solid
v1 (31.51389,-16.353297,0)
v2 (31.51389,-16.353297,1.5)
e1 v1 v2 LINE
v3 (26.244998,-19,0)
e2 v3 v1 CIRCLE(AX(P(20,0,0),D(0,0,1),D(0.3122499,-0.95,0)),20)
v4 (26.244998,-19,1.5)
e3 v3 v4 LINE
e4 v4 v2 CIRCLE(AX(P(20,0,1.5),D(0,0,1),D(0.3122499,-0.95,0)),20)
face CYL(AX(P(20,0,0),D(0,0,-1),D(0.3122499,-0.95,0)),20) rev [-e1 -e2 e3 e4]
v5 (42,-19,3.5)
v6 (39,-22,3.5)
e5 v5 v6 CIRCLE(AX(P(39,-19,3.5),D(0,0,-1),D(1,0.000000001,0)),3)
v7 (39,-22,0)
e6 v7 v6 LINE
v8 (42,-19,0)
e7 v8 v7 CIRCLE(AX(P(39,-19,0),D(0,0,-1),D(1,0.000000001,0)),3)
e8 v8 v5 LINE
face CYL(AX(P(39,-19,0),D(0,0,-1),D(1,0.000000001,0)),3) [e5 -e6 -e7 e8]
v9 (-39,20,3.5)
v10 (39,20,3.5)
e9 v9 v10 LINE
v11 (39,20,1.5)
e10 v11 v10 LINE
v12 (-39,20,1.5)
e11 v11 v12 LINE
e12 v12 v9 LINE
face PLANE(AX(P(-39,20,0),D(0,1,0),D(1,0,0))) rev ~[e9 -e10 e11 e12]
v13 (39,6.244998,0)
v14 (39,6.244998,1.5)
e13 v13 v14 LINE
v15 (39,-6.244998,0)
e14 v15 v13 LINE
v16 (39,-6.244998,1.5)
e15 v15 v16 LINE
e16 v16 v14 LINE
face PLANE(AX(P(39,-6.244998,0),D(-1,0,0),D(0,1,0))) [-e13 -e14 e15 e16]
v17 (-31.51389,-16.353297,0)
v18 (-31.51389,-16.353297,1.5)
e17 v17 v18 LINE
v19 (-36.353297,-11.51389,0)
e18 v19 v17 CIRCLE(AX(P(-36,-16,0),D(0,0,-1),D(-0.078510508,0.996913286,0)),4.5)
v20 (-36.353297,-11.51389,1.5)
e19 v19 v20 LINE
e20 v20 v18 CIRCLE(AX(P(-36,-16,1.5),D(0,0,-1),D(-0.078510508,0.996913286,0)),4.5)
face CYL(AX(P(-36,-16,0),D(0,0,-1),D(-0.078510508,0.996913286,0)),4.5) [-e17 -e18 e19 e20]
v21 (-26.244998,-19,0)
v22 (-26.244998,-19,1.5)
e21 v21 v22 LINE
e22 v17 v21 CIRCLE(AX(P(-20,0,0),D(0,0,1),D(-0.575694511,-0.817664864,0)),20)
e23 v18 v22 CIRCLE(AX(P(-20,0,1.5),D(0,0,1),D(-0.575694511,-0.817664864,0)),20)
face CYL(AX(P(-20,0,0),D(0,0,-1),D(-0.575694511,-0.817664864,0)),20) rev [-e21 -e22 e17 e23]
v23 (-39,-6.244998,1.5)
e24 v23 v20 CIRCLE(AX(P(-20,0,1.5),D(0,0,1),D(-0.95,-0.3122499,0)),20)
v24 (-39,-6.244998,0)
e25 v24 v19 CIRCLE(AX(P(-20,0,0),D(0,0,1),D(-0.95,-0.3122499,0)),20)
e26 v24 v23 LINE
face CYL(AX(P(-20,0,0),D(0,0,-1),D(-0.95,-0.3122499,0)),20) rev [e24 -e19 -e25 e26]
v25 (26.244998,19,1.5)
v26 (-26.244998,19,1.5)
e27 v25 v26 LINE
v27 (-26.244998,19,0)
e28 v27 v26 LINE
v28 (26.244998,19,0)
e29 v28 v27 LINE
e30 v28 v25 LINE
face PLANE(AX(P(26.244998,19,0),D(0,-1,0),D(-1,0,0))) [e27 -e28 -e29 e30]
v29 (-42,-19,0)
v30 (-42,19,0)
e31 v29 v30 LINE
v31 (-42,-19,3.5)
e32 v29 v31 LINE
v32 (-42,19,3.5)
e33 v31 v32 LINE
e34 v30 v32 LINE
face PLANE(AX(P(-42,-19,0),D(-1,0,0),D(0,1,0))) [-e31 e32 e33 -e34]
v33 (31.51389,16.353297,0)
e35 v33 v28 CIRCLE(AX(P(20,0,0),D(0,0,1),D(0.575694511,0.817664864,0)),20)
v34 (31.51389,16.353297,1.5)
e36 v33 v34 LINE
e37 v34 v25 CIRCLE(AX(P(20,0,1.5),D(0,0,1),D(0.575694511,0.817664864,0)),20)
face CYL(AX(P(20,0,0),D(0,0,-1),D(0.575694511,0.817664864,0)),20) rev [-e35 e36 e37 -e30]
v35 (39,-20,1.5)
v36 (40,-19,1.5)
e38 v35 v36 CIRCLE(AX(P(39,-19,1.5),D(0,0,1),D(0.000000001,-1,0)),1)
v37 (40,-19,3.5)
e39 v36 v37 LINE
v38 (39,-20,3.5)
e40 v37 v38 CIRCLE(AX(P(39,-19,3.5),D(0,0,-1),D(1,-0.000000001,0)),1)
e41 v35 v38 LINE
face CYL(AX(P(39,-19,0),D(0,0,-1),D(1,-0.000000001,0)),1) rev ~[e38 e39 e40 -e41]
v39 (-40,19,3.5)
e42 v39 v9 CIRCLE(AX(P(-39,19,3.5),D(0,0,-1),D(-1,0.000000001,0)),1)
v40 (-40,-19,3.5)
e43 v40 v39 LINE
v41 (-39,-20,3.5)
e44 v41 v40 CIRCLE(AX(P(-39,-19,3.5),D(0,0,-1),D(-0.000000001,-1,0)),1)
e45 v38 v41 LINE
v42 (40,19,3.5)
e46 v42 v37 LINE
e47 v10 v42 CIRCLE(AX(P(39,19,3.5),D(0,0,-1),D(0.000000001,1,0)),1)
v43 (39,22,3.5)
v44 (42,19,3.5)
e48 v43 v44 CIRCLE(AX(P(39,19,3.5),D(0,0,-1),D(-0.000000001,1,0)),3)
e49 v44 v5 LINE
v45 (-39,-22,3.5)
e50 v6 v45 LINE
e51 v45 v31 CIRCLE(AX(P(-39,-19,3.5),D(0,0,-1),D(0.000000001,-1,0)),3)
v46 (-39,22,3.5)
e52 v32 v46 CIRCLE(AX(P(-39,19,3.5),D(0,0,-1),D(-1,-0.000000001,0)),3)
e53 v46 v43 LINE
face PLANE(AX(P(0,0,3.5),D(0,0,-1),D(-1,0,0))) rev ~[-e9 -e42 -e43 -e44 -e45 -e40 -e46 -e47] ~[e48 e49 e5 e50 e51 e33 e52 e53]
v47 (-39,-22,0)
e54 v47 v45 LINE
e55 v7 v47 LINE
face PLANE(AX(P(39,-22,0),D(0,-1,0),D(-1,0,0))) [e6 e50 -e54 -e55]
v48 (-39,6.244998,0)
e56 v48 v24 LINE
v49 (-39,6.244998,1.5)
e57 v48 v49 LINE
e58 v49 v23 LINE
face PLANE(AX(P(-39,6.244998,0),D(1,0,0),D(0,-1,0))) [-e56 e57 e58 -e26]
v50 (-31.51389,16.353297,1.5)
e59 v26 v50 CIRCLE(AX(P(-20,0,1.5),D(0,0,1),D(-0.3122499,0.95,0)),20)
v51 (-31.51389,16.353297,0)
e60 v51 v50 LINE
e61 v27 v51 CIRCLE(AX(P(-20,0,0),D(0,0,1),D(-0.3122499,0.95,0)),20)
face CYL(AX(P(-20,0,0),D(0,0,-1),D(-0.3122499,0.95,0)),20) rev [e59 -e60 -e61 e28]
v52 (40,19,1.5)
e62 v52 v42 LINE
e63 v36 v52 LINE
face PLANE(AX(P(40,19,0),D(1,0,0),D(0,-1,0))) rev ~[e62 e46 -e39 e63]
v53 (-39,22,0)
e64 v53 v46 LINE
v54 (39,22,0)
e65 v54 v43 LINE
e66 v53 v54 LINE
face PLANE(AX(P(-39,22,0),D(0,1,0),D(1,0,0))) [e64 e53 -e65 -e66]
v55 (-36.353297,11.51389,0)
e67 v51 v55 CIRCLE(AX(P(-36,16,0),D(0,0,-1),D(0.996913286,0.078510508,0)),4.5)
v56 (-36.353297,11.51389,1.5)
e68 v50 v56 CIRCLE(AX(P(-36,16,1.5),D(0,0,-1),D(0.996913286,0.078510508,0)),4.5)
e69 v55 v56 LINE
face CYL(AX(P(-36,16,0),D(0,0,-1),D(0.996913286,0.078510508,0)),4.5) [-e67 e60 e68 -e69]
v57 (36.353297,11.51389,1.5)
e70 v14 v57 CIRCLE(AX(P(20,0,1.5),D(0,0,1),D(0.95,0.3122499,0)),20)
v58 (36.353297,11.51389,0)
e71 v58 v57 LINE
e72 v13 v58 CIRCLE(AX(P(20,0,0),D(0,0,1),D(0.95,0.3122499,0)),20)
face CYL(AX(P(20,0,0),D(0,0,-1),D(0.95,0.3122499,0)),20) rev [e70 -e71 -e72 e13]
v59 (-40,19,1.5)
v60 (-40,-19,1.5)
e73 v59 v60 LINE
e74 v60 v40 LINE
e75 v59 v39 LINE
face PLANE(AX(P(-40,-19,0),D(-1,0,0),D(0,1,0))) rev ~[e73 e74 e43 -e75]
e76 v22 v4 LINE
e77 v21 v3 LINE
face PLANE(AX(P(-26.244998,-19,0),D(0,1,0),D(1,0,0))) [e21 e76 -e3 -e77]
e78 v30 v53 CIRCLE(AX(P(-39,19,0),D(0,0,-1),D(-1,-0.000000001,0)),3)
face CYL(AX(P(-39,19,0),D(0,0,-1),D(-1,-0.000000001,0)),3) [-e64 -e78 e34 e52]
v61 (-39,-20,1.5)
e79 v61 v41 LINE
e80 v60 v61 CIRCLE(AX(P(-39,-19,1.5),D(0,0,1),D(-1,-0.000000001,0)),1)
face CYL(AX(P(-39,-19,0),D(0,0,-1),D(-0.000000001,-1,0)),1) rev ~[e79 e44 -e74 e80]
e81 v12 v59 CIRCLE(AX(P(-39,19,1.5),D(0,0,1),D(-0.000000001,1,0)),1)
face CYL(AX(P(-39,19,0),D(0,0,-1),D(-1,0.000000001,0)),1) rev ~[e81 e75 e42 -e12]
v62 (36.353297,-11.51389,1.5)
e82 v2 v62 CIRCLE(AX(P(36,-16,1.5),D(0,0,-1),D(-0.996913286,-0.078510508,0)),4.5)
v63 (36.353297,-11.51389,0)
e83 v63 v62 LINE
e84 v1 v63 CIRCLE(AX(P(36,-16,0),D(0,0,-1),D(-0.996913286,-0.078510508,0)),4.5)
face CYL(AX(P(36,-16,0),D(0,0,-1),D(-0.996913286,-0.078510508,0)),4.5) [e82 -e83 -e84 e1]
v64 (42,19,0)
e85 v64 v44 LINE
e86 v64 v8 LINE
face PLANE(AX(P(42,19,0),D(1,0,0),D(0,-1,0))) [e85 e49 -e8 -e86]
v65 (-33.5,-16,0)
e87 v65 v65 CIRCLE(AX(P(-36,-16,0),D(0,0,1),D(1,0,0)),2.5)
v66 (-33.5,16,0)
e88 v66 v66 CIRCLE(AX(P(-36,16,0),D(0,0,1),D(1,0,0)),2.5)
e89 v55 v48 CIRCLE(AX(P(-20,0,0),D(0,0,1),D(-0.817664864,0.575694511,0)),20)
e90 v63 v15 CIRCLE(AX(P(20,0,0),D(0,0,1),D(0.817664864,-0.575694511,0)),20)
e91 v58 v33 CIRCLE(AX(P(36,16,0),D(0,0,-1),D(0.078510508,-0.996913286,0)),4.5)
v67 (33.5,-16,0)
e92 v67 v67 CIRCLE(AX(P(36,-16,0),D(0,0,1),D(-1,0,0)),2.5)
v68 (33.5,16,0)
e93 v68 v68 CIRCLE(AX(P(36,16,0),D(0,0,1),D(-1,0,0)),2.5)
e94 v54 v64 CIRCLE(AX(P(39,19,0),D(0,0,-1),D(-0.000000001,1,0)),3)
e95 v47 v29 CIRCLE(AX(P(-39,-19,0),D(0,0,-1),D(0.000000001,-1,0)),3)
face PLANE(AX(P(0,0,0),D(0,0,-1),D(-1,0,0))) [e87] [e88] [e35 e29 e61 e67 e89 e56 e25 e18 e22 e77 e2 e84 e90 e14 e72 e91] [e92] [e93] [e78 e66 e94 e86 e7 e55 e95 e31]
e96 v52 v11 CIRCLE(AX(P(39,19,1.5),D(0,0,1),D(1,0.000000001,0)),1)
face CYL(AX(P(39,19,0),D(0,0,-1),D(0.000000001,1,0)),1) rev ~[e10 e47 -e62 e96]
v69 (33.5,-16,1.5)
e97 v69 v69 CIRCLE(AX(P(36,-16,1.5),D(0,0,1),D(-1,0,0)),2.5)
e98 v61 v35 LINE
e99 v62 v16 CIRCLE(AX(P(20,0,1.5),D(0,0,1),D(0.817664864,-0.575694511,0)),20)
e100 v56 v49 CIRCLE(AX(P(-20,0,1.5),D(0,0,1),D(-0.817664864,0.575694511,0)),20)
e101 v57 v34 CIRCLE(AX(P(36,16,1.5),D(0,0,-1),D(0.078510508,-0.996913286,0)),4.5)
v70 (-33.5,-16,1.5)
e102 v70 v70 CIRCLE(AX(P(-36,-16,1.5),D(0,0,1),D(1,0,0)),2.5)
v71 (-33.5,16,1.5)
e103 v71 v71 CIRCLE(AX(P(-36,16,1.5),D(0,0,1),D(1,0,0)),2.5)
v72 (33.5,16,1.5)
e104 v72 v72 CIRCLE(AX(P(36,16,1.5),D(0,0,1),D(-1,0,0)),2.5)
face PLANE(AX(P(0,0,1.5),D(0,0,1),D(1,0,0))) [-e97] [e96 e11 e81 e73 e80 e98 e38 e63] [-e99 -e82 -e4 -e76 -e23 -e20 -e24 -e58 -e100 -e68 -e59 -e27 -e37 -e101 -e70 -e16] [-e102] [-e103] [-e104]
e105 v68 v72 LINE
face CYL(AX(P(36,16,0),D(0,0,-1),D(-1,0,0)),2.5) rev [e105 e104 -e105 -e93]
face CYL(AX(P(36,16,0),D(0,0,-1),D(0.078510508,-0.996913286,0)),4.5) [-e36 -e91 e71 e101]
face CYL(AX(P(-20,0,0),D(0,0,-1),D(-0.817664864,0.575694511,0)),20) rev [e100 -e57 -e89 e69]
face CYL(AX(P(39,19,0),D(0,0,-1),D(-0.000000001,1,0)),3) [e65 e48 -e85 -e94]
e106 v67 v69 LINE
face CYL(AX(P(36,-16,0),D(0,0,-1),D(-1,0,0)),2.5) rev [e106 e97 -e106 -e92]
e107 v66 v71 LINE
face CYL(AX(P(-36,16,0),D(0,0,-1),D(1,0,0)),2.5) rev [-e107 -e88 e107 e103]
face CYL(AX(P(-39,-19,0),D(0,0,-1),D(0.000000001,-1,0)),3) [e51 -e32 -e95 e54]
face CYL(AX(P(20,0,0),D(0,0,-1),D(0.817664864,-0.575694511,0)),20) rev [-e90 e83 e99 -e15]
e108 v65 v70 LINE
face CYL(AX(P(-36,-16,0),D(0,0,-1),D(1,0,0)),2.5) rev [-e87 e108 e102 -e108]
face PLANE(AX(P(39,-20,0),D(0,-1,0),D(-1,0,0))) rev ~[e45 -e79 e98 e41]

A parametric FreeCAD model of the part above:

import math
import FreeCAD as App
import Part
import Sketcher

doc = App.newDocument("Part")
body = doc.addObject("PartDesign::Body", "Body")

sketch1 = body.newObject("Sketcher::SketchObject", "Sketch")
sketch1.AttachmentSupport = (doc.getObject("XY_Plane"), [""])
sketch1.MapMode = "FlatFace"
sketch1.addGeometry(Part.LineSegment(App.Vector(39, 20, 0), App.Vector(-39, 20, 0)), False)
sketch1.addGeometry(Part.ArcOfCircle(Part.Circle(App.Vector(-39, 19, 0), App.Vector(0, 0, 1), 1), math.radians(90), math.radians(180)), False)
sketch1.addGeometry(Part.LineSegment(App.Vector(-40, 19, 0), App.Vector(-40, -19, 0)), False)
sketch1.addGeometry(Part.ArcOfCircle(Part.Circle(App.Vector(-39, -19, 0), App.Vector(0, 0, 1), 1), math.radians(-180), math.radians(-90)), False)
sketch1.addGeometry(Part.LineSegment(App.Vector(-39, -20, 0), App.Vector(39, -20, 0)), False)
sketch1.addGeometry(Part.ArcOfCircle(Part.Circle(App.Vector(39, -19, 0), App.Vector(0, 0, 1), 1), math.radians(-90), math.radians(0)), False)
sketch1.addGeometry(Part.LineSegment(App.Vector(40, -19, 0), App.Vector(40, 19, 0)), False)
sketch1.addGeometry(Part.ArcOfCircle(Part.Circle(App.Vector(39, 19, 0), App.Vector(0, 0, 1), 1), math.radians(0), math.radians(90)), False)
sketch1.addGeometry(Part.Circle(App.Vector(-36, -16, 0), App.Vector(0, 0, 1), 2.5), False)
sketch1.addGeometry(Part.Circle(App.Vector(36, -16, 0), App.Vector(0, 0, 1), 2.5), False)
sketch1.addGeometry(Part.Circle(App.Vector(-36, 16, 0), App.Vector(0, 0, 1), 2.5), False)
sketch1.addGeometry(Part.LineSegment(App.Vector(-26.2, 19, 0), App.Vector(26.2, 19, 0)), False)
sketch1.addGeometry(Part.ArcOfCircle(Part.Circle(App.Vector(20, 0, 0), App.Vector(0, 0, 1), 20), math.radians(54.85), math.radians(71.81)), False)
sketch1.addGeometry(Part.ArcOfCircle(Part.Circle(App.Vector(36, 16, 0), App.Vector(0, 0, 1), 4.5), math.radians(175), math.radians(275)), False)
sketch1.addGeometry(Part.ArcOfCircle(Part.Circle(App.Vector(20, 0, 0), App.Vector(0, 0, 1), 20), math.radians(18.19), math.radians(35.15)), False)
sketch1.addGeometry(Part.LineSegment(App.Vector(39, 6.2, 0), App.Vector(39, -6.2, 0)), False)
sketch1.addGeometry(Part.ArcOfCircle(Part.Circle(App.Vector(20, 0, 0), App.Vector(0, 0, 1), 20), math.radians(-35.15), math.radians(-18.19)), False)
sketch1.addGeometry(Part.ArcOfCircle(Part.Circle(App.Vector(36, -16, 0), App.Vector(0, 0, 1), 4.5), math.radians(85), math.radians(185)), False)
sketch1.addGeometry(Part.ArcOfCircle(Part.Circle(App.Vector(20, 0, 0), App.Vector(0, 0, 1), 20), math.radians(-71.81), math.radians(-54.85)), False)
sketch1.addGeometry(Part.LineSegment(App.Vector(26.2, -19, 0), App.Vector(-26.2, -19, 0)), False)
sketch1.addGeometry(Part.ArcOfCircle(Part.Circle(App.Vector(-20, 0, 0), App.Vector(0, 0, 1), 20), math.radians(-125.15), math.radians(-108.19)), False)
sketch1.addGeometry(Part.ArcOfCircle(Part.Circle(App.Vector(-36, -16, 0), App.Vector(0, 0, 1), 4.5), math.radians(-5), math.radians(95)), False)
sketch1.addGeometry(Part.ArcOfCircle(Part.Circle(App.Vector(-20, 0, 0), App.Vector(0, 0, 1), 20), math.radians(-161.81), math.radians(-144.85)), False)
sketch1.addGeometry(Part.LineSegment(App.Vector(-39, -6.2, 0), App.Vector(-39, 6.2, 0)), False)
sketch1.addGeometry(Part.ArcOfCircle(Part.Circle(App.Vector(-20, 0, 0), App.Vector(0, 0, 1), 20), math.radians(144.85), math.radians(161.81)), False)
sketch1.addGeometry(Part.ArcOfCircle(Part.Circle(App.Vector(-36, 16, 0), App.Vector(0, 0, 1), 4.5), math.radians(-95), math.radians(5)), False)
sketch1.addGeometry(Part.ArcOfCircle(Part.Circle(App.Vector(-20, 0, 0), App.Vector(0, 0, 1), 20), math.radians(108.19), math.radians(125.15)), False)
sketch1.addGeometry(Part.Circle(App.Vector(36, 16, 0), App.Vector(0, 0, 1), 2.5), False)
sketch1.addConstraint(Sketcher.Constraint("Tangent", 0, 2, 1, 1))
sketch1.addConstraint(Sketcher.Constraint("Tangent", 1, 2, 2, 1))
sketch1.addConstraint(Sketcher.Constraint("Tangent", 2, 2, 3, 1))
sketch1.addConstraint(Sketcher.Constraint("Tangent", 3, 2, 4, 1))
sketch1.addConstraint(Sketcher.Constraint("Tangent", 4, 2, 5, 1))
sketch1.addConstraint(Sketcher.Constraint("Tangent", 5, 2, 6, 1))
sketch1.addConstraint(Sketcher.Constraint("Tangent", 6, 2, 7, 1))
sketch1.addConstraint(Sketcher.Constraint("Tangent", 7, 2, 0, 1))
sketch1.addConstraint(Sketcher.Constraint("Coincident", 11, 2, 12, 2))
sketch1.addConstraint(Sketcher.Constraint("Coincident", 12, 1, 13, 1))
sketch1.addConstraint(Sketcher.Constraint("Coincident", 13, 2, 14, 2))
sketch1.addConstraint(Sketcher.Constraint("Coincident", 14, 1, 15, 1))
sketch1.addConstraint(Sketcher.Constraint("Coincident", 15, 2, 16, 2))
sketch1.addConstraint(Sketcher.Constraint("Coincident", 16, 1, 17, 1))
sketch1.addConstraint(Sketcher.Constraint("Coincident", 17, 2, 18, 2))
sketch1.addConstraint(Sketcher.Constraint("Coincident", 18, 1, 19, 1))
sketch1.addConstraint(Sketcher.Constraint("Coincident", 19, 2, 20, 2))
sketch1.addConstraint(Sketcher.Constraint("Coincident", 20, 1, 21, 1))
sketch1.addConstraint(Sketcher.Constraint("Coincident", 21, 2, 22, 2))
sketch1.addConstraint(Sketcher.Constraint("Coincident", 22, 1, 23, 1))
sketch1.addConstraint(Sketcher.Constraint("Coincident", 23, 2, 24, 2))
sketch1.addConstraint(Sketcher.Constraint("Coincident", 24, 1, 25, 1))
sketch1.addConstraint(Sketcher.Constraint("Coincident", 25, 2, 26, 2))
sketch1.addConstraint(Sketcher.Constraint("Coincident", 26, 1, 11, 1))
sketch1.addConstraint(Sketcher.Constraint("Horizontal", 0))
sketch1.addConstraint(Sketcher.Constraint("Vertical", 2))
sketch1.addConstraint(Sketcher.Constraint("Horizontal", 4))
sketch1.addConstraint(Sketcher.Constraint("Vertical", 6))
sketch1.addConstraint(Sketcher.Constraint("Horizontal", 11))
sketch1.addConstraint(Sketcher.Constraint("Vertical", 15))
sketch1.addConstraint(Sketcher.Constraint("Horizontal", 19))
sketch1.addConstraint(Sketcher.Constraint("Vertical", 23))
sketch1.addConstraint(Sketcher.Constraint("Coincident", 14, 3, 12, 3))
sketch1.addConstraint(Sketcher.Constraint("Coincident", 16, 3, 12, 3))
sketch1.addConstraint(Sketcher.Constraint("Coincident", 17, 3, 9, 3))
sketch1.addConstraint(Sketcher.Constraint("Coincident", 18, 3, 12, 3))
sketch1.addConstraint(Sketcher.Constraint("Coincident", 21, 3, 8, 3))
sketch1.addConstraint(Sketcher.Constraint("Coincident", 22, 3, 20, 3))
sketch1.addConstraint(Sketcher.Constraint("Coincident", 24, 3, 20, 3))
sketch1.addConstraint(Sketcher.Constraint("Coincident", 25, 3, 10, 3))
sketch1.addConstraint(Sketcher.Constraint("Coincident", 26, 3, 20, 3))
sketch1.addConstraint(Sketcher.Constraint("Coincident", 27, 3, 13, 3))
sketch1.addConstraint(Sketcher.Constraint("Equal", 1, 3))
sketch1.addConstraint(Sketcher.Constraint("Equal", 3, 5))
sketch1.addConstraint(Sketcher.Constraint("Equal", 5, 7))
sketch1.addConstraint(Sketcher.Constraint("Equal", 8, 9))
sketch1.addConstraint(Sketcher.Constraint("Equal", 9, 10))
sketch1.addConstraint(Sketcher.Constraint("Equal", 12, 14))
sketch1.addConstraint(Sketcher.Constraint("Equal", 14, 16))
sketch1.addConstraint(Sketcher.Constraint("Equal", 13, 17))
sketch1.addConstraint(Sketcher.Constraint("Equal", 16, 18))
sketch1.addConstraint(Sketcher.Constraint("Equal", 18, 20))
sketch1.addConstraint(Sketcher.Constraint("Equal", 17, 21))
sketch1.addConstraint(Sketcher.Constraint("Equal", 20, 22))
sketch1.addConstraint(Sketcher.Constraint("Equal", 22, 24))
sketch1.addConstraint(Sketcher.Constraint("Equal", 21, 25))
sketch1.addConstraint(Sketcher.Constraint("Equal", 24, 26))
sketch1.addConstraint(Sketcher.Constraint("Equal", 10, 27))
sketch1.addConstraint(Sketcher.Constraint("Symmetric", 1, 3, 5, 3, -1, 1))
sketch1.addConstraint(Sketcher.Constraint("Symmetric", 9, 3, 10, 3, -1, 1))
sketch1.addConstraint(Sketcher.Constraint("Symmetric", 8, 3, 13, 3, -1, 1))
sketch1.addConstraint(Sketcher.Constraint("Symmetric", 12, 3, 20, 3, -1, 1))
sketch1.addConstraint(Sketcher.Constraint("Symmetric", 8, 3, 9, 3, -2))
sketch1.addConstraint(Sketcher.Constraint("Symmetric", 15, 2, 22, 1, -2))
sketch1.addConstraint(Sketcher.Constraint("Horizontal", 6, 2, 11, 2))
sketch1.addConstraint(Sketcher.Constraint("Horizontal", 5, 2, 18, 1))
sketch1.addConstraint(Sketcher.Constraint("Vertical", 7, 2, 14, 1))
sketch1.addConstraint(Sketcher.Constraint("Diameter", 8, 5.0))
sketch1.addConstraint(Sketcher.Constraint("Radius", 1, 1.0))
sketch1.addConstraint(Sketcher.Constraint("Radius", 12, 20.0))
sketch1.addConstraint(Sketcher.Constraint("Radius", 13, 4.5))
sketch1.addConstraint(Sketcher.Constraint("DistanceX", 0, 2, 0, 1, 78.0))
sketch1.addConstraint(Sketcher.Constraint("DistanceY", 2, 2, 2, 1, 38.0))
sketch1.addConstraint(Sketcher.Constraint("DistanceX", 8, 3, -1, 1, 36.0))
sketch1.addConstraint(Sketcher.Constraint("DistanceY", 8, 3, -1, 1, 16.0))
sketch1.addConstraint(Sketcher.Constraint("DistanceX", -1, 1, 12, 3, 20.0))
pad1 = body.newObject("PartDesign::Pad", "Pad")
pad1.Profile = sketch1
pad1.Length = 1.5

sketch2 = body.newObject("Sketcher::SketchObject", "Sketch001")
sketch2.AttachmentSupport = (doc.getObject("XY_Plane"), [""])
sketch2.MapMode = "FlatFace"
sketch2.addGeometry(Part.LineSegment(App.Vector(-39, 22, 0), App.Vector(39, 22, 0)), False)
sketch2.addGeometry(Part.ArcOfCircle(Part.Circle(App.Vector(39, 19, 0), App.Vector(0, 0, 1), 3), math.radians(0), math.radians(90)), False)
sketch2.addGeometry(Part.LineSegment(App.Vector(42, 19, 0), App.Vector(42, -19, 0)), False)
sketch2.addGeometry(Part.ArcOfCircle(Part.Circle(App.Vector(39, -19, 0), App.Vector(0, 0, 1), 3), math.radians(-90), math.radians(0)), False)
sketch2.addGeometry(Part.LineSegment(App.Vector(39, -22, 0), App.Vector(-39, -22, 0)), False)
sketch2.addGeometry(Part.ArcOfCircle(Part.Circle(App.Vector(-39, -19, 0), App.Vector(0, 0, 1), 3), math.radians(180), math.radians(270)), False)
sketch2.addGeometry(Part.LineSegment(App.Vector(-42, -19, 0), App.Vector(-42, 19, 0)), False)
sketch2.addGeometry(Part.ArcOfCircle(Part.Circle(App.Vector(-39, 19, 0), App.Vector(0, 0, 1), 3), math.radians(90), math.radians(180)), False)
sketch2.addGeometry(Part.LineSegment(App.Vector(-40, 19, 0), App.Vector(-40, -19, 0)), False)
sketch2.addGeometry(Part.ArcOfCircle(Part.Circle(App.Vector(-39, -19, 0), App.Vector(0, 0, 1), 1), math.radians(-180), math.radians(-90)), False)
sketch2.addGeometry(Part.LineSegment(App.Vector(-39, -20, 0), App.Vector(39, -20, 0)), False)
sketch2.addGeometry(Part.ArcOfCircle(Part.Circle(App.Vector(39, -19, 0), App.Vector(0, 0, 1), 1), math.radians(-90), math.radians(0)), False)
sketch2.addGeometry(Part.LineSegment(App.Vector(40, -19, 0), App.Vector(40, 19, 0)), False)
sketch2.addGeometry(Part.ArcOfCircle(Part.Circle(App.Vector(39, 19, 0), App.Vector(0, 0, 1), 1), math.radians(0), math.radians(90)), False)
sketch2.addGeometry(Part.LineSegment(App.Vector(39, 20, 0), App.Vector(-39, 20, 0)), False)
sketch2.addGeometry(Part.ArcOfCircle(Part.Circle(App.Vector(-39, 19, 0), App.Vector(0, 0, 1), 1), math.radians(90), math.radians(180)), False)
sketch2.addConstraint(Sketcher.Constraint("Tangent", 0, 2, 1, 2))
sketch2.addConstraint(Sketcher.Constraint("Tangent", 1, 1, 2, 1))
sketch2.addConstraint(Sketcher.Constraint("Tangent", 2, 2, 3, 2))
sketch2.addConstraint(Sketcher.Constraint("Tangent", 3, 1, 4, 1))
sketch2.addConstraint(Sketcher.Constraint("Tangent", 4, 2, 5, 2))
sketch2.addConstraint(Sketcher.Constraint("Tangent", 5, 1, 6, 1))
sketch2.addConstraint(Sketcher.Constraint("Tangent", 6, 2, 7, 2))
sketch2.addConstraint(Sketcher.Constraint("Tangent", 7, 1, 0, 1))
sketch2.addConstraint(Sketcher.Constraint("Tangent", 8, 2, 9, 1))
sketch2.addConstraint(Sketcher.Constraint("Tangent", 9, 2, 10, 1))
sketch2.addConstraint(Sketcher.Constraint("Tangent", 10, 2, 11, 1))
sketch2.addConstraint(Sketcher.Constraint("Tangent", 11, 2, 12, 1))
sketch2.addConstraint(Sketcher.Constraint("Tangent", 12, 2, 13, 1))
sketch2.addConstraint(Sketcher.Constraint("Tangent", 13, 2, 14, 1))
sketch2.addConstraint(Sketcher.Constraint("Tangent", 14, 2, 15, 1))
sketch2.addConstraint(Sketcher.Constraint("Tangent", 15, 2, 8, 1))
sketch2.addConstraint(Sketcher.Constraint("Horizontal", 0))
sketch2.addConstraint(Sketcher.Constraint("Vertical", 2))
sketch2.addConstraint(Sketcher.Constraint("Horizontal", 4))
sketch2.addConstraint(Sketcher.Constraint("Vertical", 6))
sketch2.addConstraint(Sketcher.Constraint("Vertical", 8))
sketch2.addConstraint(Sketcher.Constraint("Horizontal", 10))
sketch2.addConstraint(Sketcher.Constraint("Vertical", 12))
sketch2.addConstraint(Sketcher.Constraint("Horizontal", 14))
sketch2.addConstraint(Sketcher.Constraint("Coincident", 9, 3, 5, 3))
sketch2.addConstraint(Sketcher.Constraint("Coincident", 11, 3, 3, 3))
sketch2.addConstraint(Sketcher.Constraint("Coincident", 13, 3, 1, 3))
sketch2.addConstraint(Sketcher.Constraint("Equal", 1, 3))
sketch2.addConstraint(Sketcher.Constraint("Equal", 3, 5))
sketch2.addConstraint(Sketcher.Constraint("Equal", 5, 7))
sketch2.addConstraint(Sketcher.Constraint("Equal", 13, 15))
sketch2.addConstraint(Sketcher.Constraint("Symmetric", 1, 3, 5, 3, -1, 1))
sketch2.addConstraint(Sketcher.Constraint("Radius", 1, 3.0))
sketch2.addConstraint(Sketcher.Constraint("Radius", 9, 1.0))
sketch2.addConstraint(Sketcher.Constraint("DistanceX", 0, 1, 0, 2, 78.0))
sketch2.addConstraint(Sketcher.Constraint("DistanceY", 2, 2, 2, 1, 38.0))
pad2 = body.newObject("PartDesign::Pad", "Pad001")
pad2.Profile = sketch2
pad2.Length = 3.5

doc.recompute()
